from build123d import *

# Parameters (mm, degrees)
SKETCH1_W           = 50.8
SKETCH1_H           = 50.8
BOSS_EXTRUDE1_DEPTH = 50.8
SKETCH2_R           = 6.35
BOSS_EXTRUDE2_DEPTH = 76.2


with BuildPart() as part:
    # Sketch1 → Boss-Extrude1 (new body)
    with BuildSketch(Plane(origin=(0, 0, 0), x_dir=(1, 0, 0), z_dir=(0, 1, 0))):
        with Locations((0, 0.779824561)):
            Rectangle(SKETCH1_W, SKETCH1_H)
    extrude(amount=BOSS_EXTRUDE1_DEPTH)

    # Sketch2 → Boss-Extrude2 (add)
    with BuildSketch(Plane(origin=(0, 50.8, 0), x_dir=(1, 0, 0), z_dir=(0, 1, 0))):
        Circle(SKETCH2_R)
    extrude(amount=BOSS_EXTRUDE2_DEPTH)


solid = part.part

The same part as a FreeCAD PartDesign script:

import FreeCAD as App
import Part
import Sketcher
Q = App.Units.Quantity

doc = App.newDocument("Part")
body = doc.addObject("PartDesign::Body", "Body")

# Sketch on XZ plane
sketch1 = body.newObject("Sketcher::SketchObject", "Sketch")
sketch1.AttachmentSupport = (doc.getObject("XZ_Plane"), [""])
sketch1.MapMode = "FlatFace"
sketch1.addGeometry([
    Part.LineSegment(App.Vector(-25, -26, 0), App.Vector(-25, 25, 0)),
    Part.LineSegment(App.Vector(-25, 25, 0), App.Vector(25, 25, 0)),
    Part.LineSegment(App.Vector(25, 25, 0), App.Vector(25, -26, 0)),
    Part.LineSegment(App.Vector(25, -26, 0), App.Vector(-25, -26, 0)),
], False)
sketch1.addConstraint([
    Sketcher.Constraint("Coincident", 0, 2, 1, 1),
    Sketcher.Constraint("Coincident", 1, 2, 2, 1),
    Sketcher.Constraint("Coincident", 2, 2, 3, 1),
    Sketcher.Constraint("Coincident", 3, 2, 0, 1),
    Sketcher.Constraint("Vertical", 0),
    Sketcher.Constraint("Horizontal", 1),
    Sketcher.Constraint("Vertical", 2),
    Sketcher.Constraint("Horizontal", 3),
    Sketcher.Constraint("Equal", 3, 0),
    Sketcher.Constraint("DistanceX", 1, 1, 1, 2, Q("2 in")),
    Sketcher.Constraint("DistanceX", 0, 2, -1, 1, Q("1 in")),
    Sketcher.Constraint("DistanceY", -1, 1, 0, 2, 24.620175),
])
pad1 = body.newObject("PartDesign::Pad", "Pad")
pad1.Profile = sketch1
pad1.Length = Q("2 in")
pad1.Reversed = True

# Sketch on XZ plane
sketch2 = body.newObject("Sketcher::SketchObject", "Sketch001")
sketch2.AttachmentSupport = (doc.getObject("XZ_Plane"), [""])
sketch2.MapMode = "FlatFace"
sketch2.AttachmentOffset = App.Placement(App.Vector(0, 0, -2 * 25.4), App.Rotation())
sketch2.addGeometry(Part.Circle(App.Vector(0, 0, 0), App.Vector(0, 0, 1), 6), False)
sketch2.addConstraint([
    Sketcher.Constraint("Coincident", 0, 3, -1, 1),
    Sketcher.Constraint("Diameter", 0, Q("0.5 in")),
])
pad2 = body.newObject("PartDesign::Pad", "Pad001")
pad2.Profile = sketch2
pad2.Length = Q("3 in")
pad2.Reversed = True

doc.recompute()
